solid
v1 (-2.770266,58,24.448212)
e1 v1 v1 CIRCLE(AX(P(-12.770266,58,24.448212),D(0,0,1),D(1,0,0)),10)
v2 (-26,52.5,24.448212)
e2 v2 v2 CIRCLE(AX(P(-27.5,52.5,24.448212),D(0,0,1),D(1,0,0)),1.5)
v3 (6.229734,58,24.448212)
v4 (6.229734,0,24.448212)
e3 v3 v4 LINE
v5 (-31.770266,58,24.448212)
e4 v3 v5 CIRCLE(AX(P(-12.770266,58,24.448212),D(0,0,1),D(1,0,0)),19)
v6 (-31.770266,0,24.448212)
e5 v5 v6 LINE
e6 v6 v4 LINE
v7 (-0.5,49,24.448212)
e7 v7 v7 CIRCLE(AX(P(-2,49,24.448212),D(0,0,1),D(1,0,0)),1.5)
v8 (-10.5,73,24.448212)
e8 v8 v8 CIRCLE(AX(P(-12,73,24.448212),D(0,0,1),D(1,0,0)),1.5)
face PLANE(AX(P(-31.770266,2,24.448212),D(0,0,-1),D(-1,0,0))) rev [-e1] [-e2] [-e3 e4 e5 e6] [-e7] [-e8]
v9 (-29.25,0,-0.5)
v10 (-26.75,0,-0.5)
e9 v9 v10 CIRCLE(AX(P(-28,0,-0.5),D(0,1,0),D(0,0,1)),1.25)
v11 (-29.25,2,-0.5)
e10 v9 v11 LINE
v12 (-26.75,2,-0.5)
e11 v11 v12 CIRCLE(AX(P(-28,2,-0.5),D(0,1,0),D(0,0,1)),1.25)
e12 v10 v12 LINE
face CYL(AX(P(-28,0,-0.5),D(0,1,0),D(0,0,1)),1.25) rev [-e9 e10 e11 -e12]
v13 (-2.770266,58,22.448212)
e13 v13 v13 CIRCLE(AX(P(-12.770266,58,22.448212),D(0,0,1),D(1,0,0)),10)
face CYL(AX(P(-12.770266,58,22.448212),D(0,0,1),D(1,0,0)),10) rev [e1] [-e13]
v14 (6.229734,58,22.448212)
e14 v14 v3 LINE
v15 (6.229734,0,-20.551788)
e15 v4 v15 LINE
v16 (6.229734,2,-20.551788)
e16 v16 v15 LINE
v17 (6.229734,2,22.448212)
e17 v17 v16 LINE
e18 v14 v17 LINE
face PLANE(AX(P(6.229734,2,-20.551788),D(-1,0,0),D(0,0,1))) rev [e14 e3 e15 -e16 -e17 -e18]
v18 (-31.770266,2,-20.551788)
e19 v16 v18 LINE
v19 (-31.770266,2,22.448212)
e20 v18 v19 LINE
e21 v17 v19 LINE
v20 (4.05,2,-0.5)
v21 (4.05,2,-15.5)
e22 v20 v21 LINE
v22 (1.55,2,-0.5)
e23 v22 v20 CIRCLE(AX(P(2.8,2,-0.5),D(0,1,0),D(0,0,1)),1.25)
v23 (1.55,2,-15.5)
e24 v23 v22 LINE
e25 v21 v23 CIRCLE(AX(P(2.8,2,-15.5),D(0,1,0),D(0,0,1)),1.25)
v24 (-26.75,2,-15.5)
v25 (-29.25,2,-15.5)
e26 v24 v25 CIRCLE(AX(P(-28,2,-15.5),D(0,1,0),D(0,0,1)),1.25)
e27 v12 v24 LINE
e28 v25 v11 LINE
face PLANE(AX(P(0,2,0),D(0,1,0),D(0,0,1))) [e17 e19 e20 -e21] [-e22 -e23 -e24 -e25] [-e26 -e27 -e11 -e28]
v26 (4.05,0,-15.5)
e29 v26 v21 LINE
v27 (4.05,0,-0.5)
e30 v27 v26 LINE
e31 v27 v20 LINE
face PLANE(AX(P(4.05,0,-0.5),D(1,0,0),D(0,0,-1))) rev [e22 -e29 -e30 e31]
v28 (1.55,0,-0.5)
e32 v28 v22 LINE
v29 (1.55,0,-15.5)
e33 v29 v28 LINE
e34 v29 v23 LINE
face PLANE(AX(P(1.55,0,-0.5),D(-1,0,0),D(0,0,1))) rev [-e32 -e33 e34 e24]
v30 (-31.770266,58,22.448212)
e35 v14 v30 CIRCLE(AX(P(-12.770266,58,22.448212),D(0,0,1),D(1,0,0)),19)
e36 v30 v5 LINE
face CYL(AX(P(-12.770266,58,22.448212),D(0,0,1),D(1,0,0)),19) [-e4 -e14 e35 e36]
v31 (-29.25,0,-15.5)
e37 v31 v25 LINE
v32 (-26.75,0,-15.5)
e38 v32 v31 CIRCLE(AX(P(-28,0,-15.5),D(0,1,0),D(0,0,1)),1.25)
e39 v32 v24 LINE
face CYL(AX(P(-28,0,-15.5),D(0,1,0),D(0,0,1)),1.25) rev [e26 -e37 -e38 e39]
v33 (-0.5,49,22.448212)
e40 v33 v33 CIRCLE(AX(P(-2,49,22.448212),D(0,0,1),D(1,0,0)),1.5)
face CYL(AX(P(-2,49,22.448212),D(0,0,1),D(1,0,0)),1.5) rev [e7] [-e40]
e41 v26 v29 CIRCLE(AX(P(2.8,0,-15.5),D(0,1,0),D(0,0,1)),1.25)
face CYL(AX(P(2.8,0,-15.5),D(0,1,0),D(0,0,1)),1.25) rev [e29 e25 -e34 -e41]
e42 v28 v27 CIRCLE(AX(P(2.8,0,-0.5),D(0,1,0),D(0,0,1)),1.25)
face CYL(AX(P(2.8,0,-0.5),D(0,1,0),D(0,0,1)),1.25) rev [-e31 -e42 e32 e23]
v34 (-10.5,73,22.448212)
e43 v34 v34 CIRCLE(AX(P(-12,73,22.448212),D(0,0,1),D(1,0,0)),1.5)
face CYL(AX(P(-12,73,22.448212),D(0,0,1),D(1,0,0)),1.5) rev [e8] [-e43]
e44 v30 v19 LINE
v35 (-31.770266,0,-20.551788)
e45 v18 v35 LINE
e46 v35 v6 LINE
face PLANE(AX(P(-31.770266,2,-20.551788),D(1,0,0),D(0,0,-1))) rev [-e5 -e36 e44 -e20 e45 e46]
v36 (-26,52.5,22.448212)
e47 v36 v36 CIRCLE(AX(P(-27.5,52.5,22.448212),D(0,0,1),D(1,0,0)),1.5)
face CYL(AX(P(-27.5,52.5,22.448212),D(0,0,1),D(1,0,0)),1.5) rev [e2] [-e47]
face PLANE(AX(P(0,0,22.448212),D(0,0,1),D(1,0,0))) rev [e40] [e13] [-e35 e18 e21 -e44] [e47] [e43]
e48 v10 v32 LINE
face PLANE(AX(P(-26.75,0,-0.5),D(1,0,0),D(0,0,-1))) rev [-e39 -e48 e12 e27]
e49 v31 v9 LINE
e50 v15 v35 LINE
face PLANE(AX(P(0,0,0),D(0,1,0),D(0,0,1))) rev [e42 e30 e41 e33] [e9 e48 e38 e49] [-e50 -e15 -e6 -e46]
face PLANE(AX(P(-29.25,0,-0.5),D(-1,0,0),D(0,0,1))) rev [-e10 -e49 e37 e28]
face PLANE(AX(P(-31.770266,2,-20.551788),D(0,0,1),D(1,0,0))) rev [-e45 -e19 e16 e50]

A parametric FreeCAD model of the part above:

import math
import FreeCAD as App
import Part
import Sketcher
from FreeCAD import Vector

doc = App.newDocument("Part")
body = doc.addObject("PartDesign::Body", "Body")

sketch1 = doc.addObject("Sketcher::SketchObject", "Sketch")
body.addObject(sketch1)
sketch1.AttachmentSupport = (doc.XZ_Plane, [""])
sketch1.MapMode = "FlatFace"
sketch1.addGeometry(Part.LineSegment(Vector(-32, -21, 0), Vector(-32, 24, 0)), False)
sketch1.addGeometry(Part.LineSegment(Vector(-32, 24, 0), Vector(6, 24, 0)), False)
sketch1.addGeometry(Part.LineSegment(Vector(6, 24, 0), Vector(6, -21, 0)), False)
sketch1.addGeometry(Part.LineSegment(Vector(6, -21, 0), Vector(-32, -21, 0)), False)
sketch1.addConstraint(Sketcher.Constraint("Coincident", 0, 2, 1, 1))
sketch1.addConstraint(Sketcher.Constraint("Coincident", 1, 2, 2, 1))
sketch1.addConstraint(Sketcher.Constraint("Coincident", 2, 2, 3, 1))
sketch1.addConstraint(Sketcher.Constraint("Coincident", 3, 2, 0, 1))
sketch1.addConstraint(Sketcher.Constraint("Vertical", 0))
sketch1.addConstraint(Sketcher.Constraint("Horizontal", 1))
sketch1.addConstraint(Sketcher.Constraint("Vertical", 2))
sketch1.addConstraint(Sketcher.Constraint("Horizontal", 3))
sketch1.addConstraint(Sketcher.Constraint("DistanceX", 1, 1, 1, 2, 38.0))
sketch1.addConstraint(Sketcher.Constraint("DistanceY", 0, 1, 0, 2, 45.0))
sketch1.addConstraint(Sketcher.Constraint("DistanceX", 0, 2, -1, 1, 31.770266))
sketch1.addConstraint(Sketcher.Constraint("DistanceY", -1, 1, 0, 2, 24.448212))
pad1 = doc.addObject("PartDesign::Pad", "Pad")
body.addObject(pad1)
pad1.Profile = sketch1
pad1.Length = 2
pad1.Reversed = True
body2 = doc.addObject("PartDesign::Body", "Body001")

sketch2 = doc.addObject("Sketcher::SketchObject", "Sketch001")
body2.addObject(sketch2)
sketch2.AttachmentSupport = (doc.getObject("XY_Plane001"), [""])
sketch2.MapMode = "FlatFace"
sketch2.AttachmentOffset = App.Placement(Vector(0, 0, 24.448212), App.Rotation())
sketch2.addGeometry(Part.Circle(Vector(-13, 58, 0), Vector(0, 0, 1), 19), False)
sketch2.addGeometry(Part.Circle(Vector(-13, 58, 0), Vector(0, 0, 1), 10), False)
sketch2.addConstraint(Sketcher.Constraint("Coincident", 1, 3, 0, 3))
sketch2.addConstraint(Sketcher.Constraint("Diameter", 0, 38.0))
sketch2.addConstraint(Sketcher.Constraint("Diameter", 1, 20.0))
sketch2.addConstraint(Sketcher.Constraint("DistanceY", -1, 1, 0, 3, 58.0))
sketch2.addConstraint(Sketcher.Constraint("DistanceX", 0, 3, -1, 1, 12.770266))
pad2 = doc.addObject("PartDesign::Pad", "Pad001")
body2.addObject(pad2)
pad2.Profile = sketch2
pad2.Length = 2
pad2.Reversed = True
body.AllowCompound = True
doc.recompute()

boolean = doc.addObject("PartDesign::Boolean", "Boolean")
body.addObject(boolean)
boolean.Type = "Fuse"
boolean.addObjects([body2])

sketch3 = doc.addObject("Sketcher::SketchObject", "Sketch002")
body.addObject(sketch3)
sketch3.AttachmentSupport = (doc.XY_Plane, [""])
sketch3.MapMode = "FlatFace"
sketch3.AttachmentOffset = App.Placement(Vector(0, 0, 24.448212), App.Rotation())
sketch3.addGeometry(Part.LineSegment(Vector(-32, 2, 0), Vector(6, 2, 0)), False)
sketch3.addGeometry(Part.LineSegment(Vector(6, 2, 0), Vector(6, 58, 0)), False)
sketch3.addGeometry(Part.ArcOfCircle(Part.Circle(Vector(-13, 58, 0), Vector(0, 0, 1), 19), math.radians(180), math.radians(360)), False)
sketch3.addGeometry(Part.LineSegment(Vector(-32, 58, 0), Vector(-32, 2, 0)), False)
sketch3.addConstraint(Sketcher.Constraint("Coincident", 0, 2, 1, 1))
sketch3.addConstraint(Sketcher.Constraint("Tangent", 1, 2, 2, 2))
sketch3.addConstraint(Sketcher.Constraint("Tangent", 2, 1, 3, 1))
sketch3.addConstraint(Sketcher.Constraint("Coincident", 3, 2, 0, 1))
sketch3.addConstraint(Sketcher.Constraint("Horizontal", 0))
sketch3.addConstraint(Sketcher.Constraint("Vertical", 1))
sketch3.addConstraint(Sketcher.Constraint("Vertical", 3))
sketch3.addConstraint(Sketcher.Constraint("Radius", 2, 19.0))
sketch3.addConstraint(Sketcher.Constraint("DistanceY", 1, 1, 1, 2, 56.0))
sketch3.addConstraint(Sketcher.Constraint("DistanceY", -1, 1, 2, 3, 58.0))
sketch3.addConstraint(Sketcher.Constraint("DistanceX", 2, 3, -1, 1, 12.770266))
pad3 = doc.addObject("PartDesign::Pad", "Pad002")
body.addObject(pad3)
pad3.Profile = sketch3
pad3.Length = 2
pad3.Reversed = True

sketch4 = doc.addObject("Sketcher::SketchObject", "Sketch003")
body.addObject(sketch4)
sketch4.AttachmentSupport = (doc.XZ_Plane, [""])
sketch4.MapMode = "FlatFace"
sketch4.AttachmentOffset = App.Placement(Vector(0, 0, -2), App.Rotation())
sketch4.addGeometry(Part.LineSegment(Vector(1.6, -15.5, 0), Vector(1.6, -0.5, 0)), False)
sketch4.addGeometry(Part.ArcOfCircle(Part.Circle(Vector(2.8, -0.5, 0), Vector(0, 0, 1), 1.2), math.radians(0), math.radians(180)), False)
sketch4.addGeometry(Part.LineSegment(Vector(4, -0.5, 0), Vector(4, -15.5, 0)), False)
sketch4.addGeometry(Part.ArcOfCircle(Part.Circle(Vector(2.8, -15.5, 0), Vector(0, 0, 1), 1.2), math.radians(180), math.radians(360)), False)
sketch4.addGeometry(Part.LineSegment(Vector(-29.2, -15.5, 0), Vector(-29.2, -0.5, 0)), False)
sketch4.addGeometry(Part.ArcOfCircle(Part.Circle(Vector(-28, -0.5, 0), Vector(0, 0, 1), 1.2), math.radians(0), math.radians(180)), False)
sketch4.addGeometry(Part.LineSegment(Vector(-26.8, -0.5, 0), Vector(-26.8, -15.5, 0)), False)
sketch4.addGeometry(Part.ArcOfCircle(Part.Circle(Vector(-28, -15.5, 0), Vector(0, 0, 1), 1.2), math.radians(180), math.radians(360)), False)
sketch4.addConstraint(Sketcher.Constraint("Tangent", 0, 2, 1, 2))
sketch4.addConstraint(Sketcher.Constraint("Tangent", 1, 1, 2, 1))
sketch4.addConstraint(Sketcher.Constraint("Tangent", 2, 2, 3, 2))
sketch4.addConstraint(Sketcher.Constraint("Tangent", 3, 1, 0, 1))
sketch4.addConstraint(Sketcher.Constraint("Tangent", 4, 2, 5, 2))
sketch4.addConstraint(Sketcher.Constraint("Tangent", 5, 1, 6, 1))
sketch4.addConstraint(Sketcher.Constraint("Tangent", 6, 2, 7, 2))
sketch4.addConstraint(Sketcher.Constraint("Tangent", 7, 1, 4, 1))
sketch4.addConstraint(Sketcher.Constraint("Vertical", 0))
sketch4.addConstraint(Sketcher.Constraint("Vertical", 2))
sketch4.addConstraint(Sketcher.Constraint("Vertical", 4))
sketch4.addConstraint(Sketcher.Constraint("Vertical", 6))
sketch4.addConstraint(Sketcher.Constraint("Equal", 3, 5))
sketch4.addConstraint(Sketcher.Constraint("Horizontal", 1, 3, 5, 3))
sketch4.addConstraint(Sketcher.Constraint("Horizontal", 3, 3, 7, 3))
sketch4.addConstraint(Sketcher.Constraint("DistanceY", 0, 1, 0, 2, 15.0))
sketch4.addConstraint(Sketcher.Constraint("Radius", 1, 1.25))
sketch4.addConstraint(Sketcher.Constraint("DistanceX", 5, 3, -1, 1, 28.0))
sketch4.addConstraint(Sketcher.Constraint("DistanceX", -1, 1, 1, 3, 2.8))
sketch4.addConstraint(Sketcher.Constraint("DistanceY", 1, 3, -1, 1, 0.5))
pocket1 = doc.addObject("PartDesign::Pocket", "Pocket")
body.addObject(pocket1)
pocket1.Profile = sketch4
pocket1.Length = 2
pocket1.Reversed = True

sketch5 = doc.addObject("Sketcher::SketchObject", "Sketch004")
body.addObject(sketch5)
sketch5.AttachmentSupport = (doc.XY_Plane, [""])
sketch5.MapMode = "FlatFace"
sketch5.AttachmentOffset = App.Placement(Vector(0, 0, 24.448212), App.Rotation())
sketch5.addGeometry(Part.Circle(Vector(-12, 73, 0), Vector(0, 0, 1), 1.5), False)
sketch5.addGeometry(Part.Circle(Vector(-2, 49, 0), Vector(0, 0, 1), 1.5), False)
sketch5.addGeometry(Part.Circle(Vector(-27.5, 52.5, 0), Vector(0, 0, 1), 1.5), False)
sketch5.addConstraint(Sketcher.Constraint("Equal", 0, 1))
sketch5.addConstraint(Sketcher.Constraint("Equal", 1, 2))
sketch5.addConstraint(Sketcher.Constraint("Diameter", 0, 3.0))
sketch5.addConstraint(Sketcher.Constraint("DistanceX", 0, 3, -1, 1, 12.0))
sketch5.addConstraint(Sketcher.Constraint("DistanceY", -1, 1, 0, 3, 73.0))
sketch5.addConstraint(Sketcher.Constraint("DistanceX", 1, 3, -1, 1, 2.0))
sketch5.addConstraint(Sketcher.Constraint("DistanceY", -1, 1, 1, 3, 49.0))
sketch5.addConstraint(Sketcher.Constraint("DistanceX", 2, 3, -1, 1, 27.5))
sketch5.addConstraint(Sketcher.Constraint("DistanceY", -1, 1, 2, 3, 52.5))
pocket2 = doc.addObject("PartDesign::Pocket", "Pocket001")
body.addObject(pocket2)
pocket2.Profile = sketch5
pocket2.Length = 2

doc.recompute()
